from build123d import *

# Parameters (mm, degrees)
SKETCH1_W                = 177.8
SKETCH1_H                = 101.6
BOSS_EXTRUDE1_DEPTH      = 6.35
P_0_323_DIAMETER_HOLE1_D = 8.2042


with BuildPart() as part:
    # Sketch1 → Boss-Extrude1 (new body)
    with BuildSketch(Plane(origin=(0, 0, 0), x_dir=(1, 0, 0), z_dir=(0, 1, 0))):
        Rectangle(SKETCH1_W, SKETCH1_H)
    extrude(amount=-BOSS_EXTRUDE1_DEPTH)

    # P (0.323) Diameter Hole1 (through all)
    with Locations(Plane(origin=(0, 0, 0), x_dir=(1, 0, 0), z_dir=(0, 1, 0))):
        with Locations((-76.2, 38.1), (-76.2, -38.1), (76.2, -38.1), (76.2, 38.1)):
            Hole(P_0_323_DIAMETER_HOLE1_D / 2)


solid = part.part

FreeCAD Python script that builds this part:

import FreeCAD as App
import Part
import Sketcher

V = App.Vector
Q = App.Units.Quantity


def add_polygon(sketch, points):
    """Adds a closed chain of lines whose ends are joined by coincident constraints."""
    first, n = sketch.GeometryCount, len(points)
    for a, b in zip(points, points[1:] + points[:1]):
        sketch.addGeometry(Part.LineSegment(App.Vector(*a, 0), App.Vector(*b, 0)), False)
    for i in range(n):
        sketch.addConstraint(Sketcher.Constraint("Coincident", first + i, 2, first + (i + 1) % n, 1))

doc = App.newDocument("Part")
params = doc.addObject("Spreadsheet::Sheet", "Params")
for row, (alias, value) in enumerate([
    ("sketch1_width", "7 in"),
    ("sketch1_height", "4 in"),
    ("pad1_length", "0.25 in"),
    ("sketch2_diameter", "0.323 in"),
    ("hole_diameter", "0.323 in"),
], start=1):
    params.set(f"A{row}", alias)
    params.set(f"B{row}", "=" + value)
    params.setAlias(f"B{row}", alias)

body = doc.addObject("PartDesign::Body", "Body")

sketch1 = doc.addObject("Sketcher::SketchObject", "Sketch")
body.addObject(sketch1)
sketch1.AttachmentSupport = (doc.XZ_Plane, [""])
sketch1.MapMode = "FlatFace"
add_polygon(sketch1, [(-89, -51), (-89, 51), (89, 51), (89, -51)])
sketch1.addConstraint(Sketcher.Constraint("Vertical", 0))
sketch1.addConstraint(Sketcher.Constraint("Horizontal", 1))
sketch1.addConstraint(Sketcher.Constraint("Vertical", 2))
sketch1.addConstraint(Sketcher.Constraint("Horizontal", 3))
sketch1.addConstraint(Sketcher.Constraint("Symmetric", 0, 2, 2, 2, -1, 1))
sketch1.addConstraint(Sketcher.Constraint("DistanceX", 1, 1, 1, 2, Q("7 in")))
sketch1.addConstraint(Sketcher.Constraint("DistanceY", 0, 1, 0, 2, Q("4 in")))
sketch1.setExpression("Constraints[9]", "Params.sketch1_width")
sketch1.setExpression("Constraints[10]", "Params.sketch1_height")
pad1 = doc.addObject("PartDesign::Pad", "Pad")
body.addObject(pad1)
pad1.Profile = sketch1
pad1.setExpression("Length", "Params.pad1_length")

sketch2 = doc.addObject("Sketcher::SketchObject", "Sketch001")
body.addObject(sketch2)
sketch2.AttachmentSupport = (doc.XZ_Plane, [""])
sketch2.MapMode = "FlatFace"
sketch2.addGeometry(Part.Circle(V(-76.2, -38.1, 0), V(0, 0, 1), 4.1), False)
sketch2.addGeometry(Part.Circle(V(-76.2, 38.1, 0), V(0, 0, 1), 4.1), False)
sketch2.addGeometry(Part.Circle(V(76.2, 38.1, 0), V(0, 0, 1), 4.1), False)
sketch2.addGeometry(Part.Circle(V(76.2, -38.1, 0), V(0, 0, 1), 4.1), False)
sketch2.addConstraint(Sketcher.Constraint("Equal", 0, 1))
sketch2.addConstraint(Sketcher.Constraint("Equal", 1, 2))
sketch2.addConstraint(Sketcher.Constraint("Equal", 2, 3))
sketch2.addConstraint(Sketcher.Constraint("Symmetric", 0, 3, 2, 3, -1, 1))
sketch2.addConstraint(Sketcher.Constraint("Symmetric", 1, 3, 3, 3, -1, 1))
sketch2.addConstraint(Sketcher.Constraint("Symmetric", 1, 3, 2, 3, -2))
sketch2.addConstraint(Sketcher.Constraint("Diameter", 0, Q("0.323 in")))
sketch2.addConstraint(Sketcher.Constraint("DistanceX", 0, 3, -1, 1, Q("3 in")))
sketch2.addConstraint(Sketcher.Constraint("DistanceY", 0, 3, 1, 3, Q("3 in")))
sketch2.setExpression("Constraints[6]", "Params.sketch2_diameter")
doc.recompute()
hole = doc.addObject("PartDesign::Hole", "Hole")
body.addObject(hole)
hole.Profile = sketch2
hole.ThreadType = "None"
hole.setExpression("Diameter", "Params.hole_diameter")
hole.DepthType = "ThroughAll"
hole.Reversed = True

doc.recompute()
